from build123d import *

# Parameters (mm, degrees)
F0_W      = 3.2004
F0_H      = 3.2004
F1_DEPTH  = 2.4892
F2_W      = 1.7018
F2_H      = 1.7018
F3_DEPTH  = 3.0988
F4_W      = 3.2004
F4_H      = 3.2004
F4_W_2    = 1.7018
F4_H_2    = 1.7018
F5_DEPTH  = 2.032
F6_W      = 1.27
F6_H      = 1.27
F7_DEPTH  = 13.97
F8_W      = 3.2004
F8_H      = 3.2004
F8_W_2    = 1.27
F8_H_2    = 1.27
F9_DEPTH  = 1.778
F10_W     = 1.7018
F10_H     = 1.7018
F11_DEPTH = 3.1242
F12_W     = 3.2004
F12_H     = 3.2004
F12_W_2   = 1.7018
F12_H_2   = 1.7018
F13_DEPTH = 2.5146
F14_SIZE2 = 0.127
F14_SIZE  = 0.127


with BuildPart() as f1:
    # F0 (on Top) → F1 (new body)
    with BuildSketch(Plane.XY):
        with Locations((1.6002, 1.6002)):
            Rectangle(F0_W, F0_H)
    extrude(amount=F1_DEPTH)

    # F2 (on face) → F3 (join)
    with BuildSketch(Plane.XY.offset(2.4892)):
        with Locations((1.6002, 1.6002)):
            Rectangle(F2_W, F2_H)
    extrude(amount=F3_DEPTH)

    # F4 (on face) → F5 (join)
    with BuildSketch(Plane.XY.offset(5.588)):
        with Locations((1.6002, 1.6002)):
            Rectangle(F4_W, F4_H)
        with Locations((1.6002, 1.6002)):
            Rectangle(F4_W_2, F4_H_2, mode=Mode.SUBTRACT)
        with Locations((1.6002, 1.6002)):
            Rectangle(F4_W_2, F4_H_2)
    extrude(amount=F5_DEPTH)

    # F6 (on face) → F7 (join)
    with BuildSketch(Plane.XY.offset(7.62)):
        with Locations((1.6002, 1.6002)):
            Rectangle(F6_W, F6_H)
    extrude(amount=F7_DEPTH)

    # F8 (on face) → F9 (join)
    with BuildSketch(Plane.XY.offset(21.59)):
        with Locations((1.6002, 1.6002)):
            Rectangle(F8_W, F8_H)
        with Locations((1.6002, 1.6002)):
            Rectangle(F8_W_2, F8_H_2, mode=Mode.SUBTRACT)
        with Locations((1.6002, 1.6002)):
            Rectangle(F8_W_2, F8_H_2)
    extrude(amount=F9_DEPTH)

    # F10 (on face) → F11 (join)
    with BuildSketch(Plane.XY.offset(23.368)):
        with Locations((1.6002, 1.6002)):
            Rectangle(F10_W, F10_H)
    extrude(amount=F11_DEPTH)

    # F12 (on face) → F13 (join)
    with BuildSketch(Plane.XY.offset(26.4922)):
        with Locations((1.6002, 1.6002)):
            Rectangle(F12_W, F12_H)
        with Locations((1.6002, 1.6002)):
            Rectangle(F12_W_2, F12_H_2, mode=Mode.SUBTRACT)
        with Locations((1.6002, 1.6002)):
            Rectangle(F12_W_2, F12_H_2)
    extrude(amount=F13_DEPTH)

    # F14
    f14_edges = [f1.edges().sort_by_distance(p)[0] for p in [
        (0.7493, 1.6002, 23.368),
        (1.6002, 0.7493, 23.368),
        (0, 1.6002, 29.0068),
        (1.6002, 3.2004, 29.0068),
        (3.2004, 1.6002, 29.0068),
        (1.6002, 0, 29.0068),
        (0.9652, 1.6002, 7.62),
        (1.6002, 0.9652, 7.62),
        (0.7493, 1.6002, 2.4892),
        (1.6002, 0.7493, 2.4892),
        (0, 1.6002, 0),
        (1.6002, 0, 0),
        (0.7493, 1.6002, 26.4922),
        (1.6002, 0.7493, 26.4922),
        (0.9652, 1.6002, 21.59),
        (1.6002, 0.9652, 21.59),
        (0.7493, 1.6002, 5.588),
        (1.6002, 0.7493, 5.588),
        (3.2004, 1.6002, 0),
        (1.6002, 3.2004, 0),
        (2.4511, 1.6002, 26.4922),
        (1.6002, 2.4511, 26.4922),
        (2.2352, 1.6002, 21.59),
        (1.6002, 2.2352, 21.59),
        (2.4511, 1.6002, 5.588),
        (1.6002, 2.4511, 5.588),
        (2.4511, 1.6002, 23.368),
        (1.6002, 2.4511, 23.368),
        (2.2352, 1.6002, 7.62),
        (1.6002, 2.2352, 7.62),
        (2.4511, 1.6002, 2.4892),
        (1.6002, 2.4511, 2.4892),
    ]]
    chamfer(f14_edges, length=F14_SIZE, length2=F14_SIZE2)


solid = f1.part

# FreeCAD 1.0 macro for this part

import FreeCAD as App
import Part
import Sketcher
from FreeCAD import Vector
Q = App.Units.Quantity


def edges_at(feature, points):
    """Names of the edges that pass closest to the given points."""
    edges = feature.Shape.Edges
    near = lambda p: min(range(len(edges)), key=lambda i: edges[i].distToShape(Part.Vertex(*p))[0])
    return sorted({f"Edge{near(p) + 1}" for p in points})

doc = App.newDocument("Part")
body = doc.addObject("PartDesign::Body", "Body")

# Sketch on XY plane
sketch1 = body.newObject("Sketcher::SketchObject", "Sketch")
sketch1.AttachmentSupport = (doc.getObject("XY_Plane"), [""])
sketch1.MapMode = "FlatFace"
sketch1.addGeometry([
    Part.LineSegment(Vector(0, 3.2, 0), Vector(0, 0, 0)),
    Part.LineSegment(Vector(0, 0, 0), Vector(3.2, 0, 0)),
    Part.LineSegment(Vector(3.2, 0, 0), Vector(3.2, 3.2, 0)),
    Part.LineSegment(Vector(3.2, 3.2, 0), Vector(0, 3.2, 0)),
], False)
sketch1.addConstraint([
    Sketcher.Constraint("Coincident", 0, 2, 1, 1),
    Sketcher.Constraint("Coincident", 1, 2, 2, 1),
    Sketcher.Constraint("Coincident", 2, 2, 3, 1),
    Sketcher.Constraint("Coincident", 3, 2, 0, 1),
    Sketcher.Constraint("Vertical", 0),
    Sketcher.Constraint("Horizontal", 1),
    Sketcher.Constraint("Vertical", 2),
    Sketcher.Constraint("Horizontal", 3),
    Sketcher.Constraint("Coincident", 0, 2, -1, 1),
    Sketcher.Constraint("Equal", 3, 0),
    Sketcher.Constraint("DistanceX", 1, 1, 1, 2, Q("0.126 in")),
])
pad1 = body.newObject("PartDesign::Pad", "Pad")
pad1.Profile = sketch1
pad1.Length = Q("0.098 in")

# Sketch on XY plane
sketch2 = body.newObject("Sketcher::SketchObject", "Sketch001")
sketch2.AttachmentSupport = (doc.getObject("XY_Plane"), [""])
sketch2.MapMode = "FlatFace"
sketch2.AttachmentOffset = App.Placement(Vector(0, 0, 0.098 * 25.4), App.Rotation())
sketch2.addGeometry([
    Part.LineSegment(Vector(0.7, 2.5, 0), Vector(0.7, 0.7, 0)),
    Part.LineSegment(Vector(0.7, 0.7, 0), Vector(2.5, 0.7, 0)),
    Part.LineSegment(Vector(2.5, 0.7, 0), Vector(2.5, 2.5, 0)),
    Part.LineSegment(Vector(2.5, 2.5, 0), Vector(0.7, 2.5, 0)),
], False)
sketch2.addConstraint([
    Sketcher.Constraint("Coincident", 0, 2, 1, 1),
    Sketcher.Constraint("Coincident", 1, 2, 2, 1),
    Sketcher.Constraint("Coincident", 2, 2, 3, 1),
    Sketcher.Constraint("Coincident", 3, 2, 0, 1),
    Sketcher.Constraint("Vertical", 0),
    Sketcher.Constraint("Horizontal", 1),
    Sketcher.Constraint("Vertical", 2),
    Sketcher.Constraint("Horizontal", 3),
    Sketcher.Constraint("Equal", 3, 0),
    Sketcher.Constraint("DistanceX", 1, 1, 1, 2, Q("0.067 in")),
    Sketcher.Constraint("DistanceX", -1, 1, 0, 2, Q("0.0295 in")),
    Sketcher.Constraint("DistanceY", -1, 1, 0, 2, Q("0.0295 in")),
])
pad2 = body.newObject("PartDesign::Pad", "Pad001")
pad2.Profile = sketch2
pad2.Length = Q("0.122 in")

# Sketch on XY plane
sketch3 = body.newObject("Sketcher::SketchObject", "Sketch002")
sketch3.AttachmentSupport = (doc.getObject("XY_Plane"), [""])
sketch3.MapMode = "FlatFace"
sketch3.AttachmentOffset = App.Placement(Vector(0, 0, 0.22 * 25.4), App.Rotation())
sketch3.addGeometry([
    Part.LineSegment(Vector(0, 3.2, 0), Vector(0, 0, 0)),
    Part.LineSegment(Vector(0, 0, 0), Vector(3.2, 0, 0)),
    Part.LineSegment(Vector(3.2, 0, 0), Vector(3.2, 3.2, 0)),
    Part.LineSegment(Vector(3.2, 3.2, 0), Vector(0, 3.2, 0)),
], False)
sketch3.addConstraint([
    Sketcher.Constraint("Coincident", 0, 2, 1, 1),
    Sketcher.Constraint("Coincident", 1, 2, 2, 1),
    Sketcher.Constraint("Coincident", 2, 2, 3, 1),
    Sketcher.Constraint("Coincident", 3, 2, 0, 1),
    Sketcher.Constraint("Vertical", 0),
    Sketcher.Constraint("Horizontal", 1),
    Sketcher.Constraint("Vertical", 2),
    Sketcher.Constraint("Horizontal", 3),
    Sketcher.Constraint("Coincident", 0, 2, -1, 1),
    Sketcher.Constraint("Equal", 3, 0),
    Sketcher.Constraint("DistanceX", 1, 1, 1, 2, Q("0.126 in")),
])
pad3 = body.newObject("PartDesign::Pad", "Pad002")
pad3.Profile = sketch3
pad3.Length = Q("0.08 in")

# Sketch on XY plane
sketch4 = body.newObject("Sketcher::SketchObject", "Sketch003")
sketch4.AttachmentSupport = (doc.getObject("XY_Plane"), [""])
sketch4.MapMode = "FlatFace"
sketch4.AttachmentOffset = App.Placement(Vector(0, 0, 0.3 * 25.4), App.Rotation())
sketch4.addGeometry([
    Part.LineSegment(Vector(1, 2.2, 0), Vector(1, 1, 0)),
    Part.LineSegment(Vector(1, 1, 0), Vector(2.2, 1, 0)),
    Part.LineSegment(Vector(2.2, 1, 0), Vector(2.2, 2.2, 0)),
    Part.LineSegment(Vector(2.2, 2.2, 0), Vector(1, 2.2, 0)),
], False)
sketch4.addConstraint([
    Sketcher.Constraint("Coincident", 0, 2, 1, 1),
    Sketcher.Constraint("Coincident", 1, 2, 2, 1),
    Sketcher.Constraint("Coincident", 2, 2, 3, 1),
    Sketcher.Constraint("Coincident", 3, 2, 0, 1),
    Sketcher.Constraint("Vertical", 0),
    Sketcher.Constraint("Horizontal", 1),
    Sketcher.Constraint("Vertical", 2),
    Sketcher.Constraint("Horizontal", 3),
    Sketcher.Constraint("Equal", 3, 0),
    Sketcher.Constraint("DistanceX", 1, 1, 1, 2, Q("0.05 in")),
    Sketcher.Constraint("DistanceX", -1, 1, 0, 2, Q("0.038 in")),
    Sketcher.Constraint("DistanceY", -1, 1, 0, 2, Q("0.038 in")),
])
pad4 = body.newObject("PartDesign::Pad", "Pad003")
pad4.Profile = sketch4
pad4.Length = Q("0.55 in")

# Sketch on XY plane
sketch5 = body.newObject("Sketcher::SketchObject", "Sketch004")
sketch5.AttachmentSupport = (doc.getObject("XY_Plane"), [""])
sketch5.MapMode = "FlatFace"
sketch5.AttachmentOffset = App.Placement(Vector(0, 0, 0.85 * 25.4), App.Rotation())
sketch5.addGeometry([
    Part.LineSegment(Vector(0, 3.2, 0), Vector(0, 0, 0)),
    Part.LineSegment(Vector(0, 0, 0), Vector(3.2, 0, 0)),
    Part.LineSegment(Vector(3.2, 0, 0), Vector(3.2, 3.2, 0)),
    Part.LineSegment(Vector(3.2, 3.2, 0), Vector(0, 3.2, 0)),
], False)
sketch5.addConstraint([
    Sketcher.Constraint("Coincident", 0, 2, 1, 1),
    Sketcher.Constraint("Coincident", 1, 2, 2, 1),
    Sketcher.Constraint("Coincident", 2, 2, 3, 1),
    Sketcher.Constraint("Coincident", 3, 2, 0, 1),
    Sketcher.Constraint("Vertical", 0),
    Sketcher.Constraint("Horizontal", 1),
    Sketcher.Constraint("Vertical", 2),
    Sketcher.Constraint("Horizontal", 3),
    Sketcher.Constraint("Coincident", 0, 2, -1, 1),
    Sketcher.Constraint("Equal", 3, 0),
    Sketcher.Constraint("DistanceX", 1, 1, 1, 2, Q("0.126 in")),
])
pad5 = body.newObject("PartDesign::Pad", "Pad004")
pad5.Profile = sketch5
pad5.Length = Q("0.07 in")

# Sketch on XY plane
sketch6 = body.newObject("Sketcher::SketchObject", "Sketch005")
sketch6.AttachmentSupport = (doc.getObject("XY_Plane"), [""])
sketch6.MapMode = "FlatFace"
sketch6.AttachmentOffset = App.Placement(Vector(0, 0, 0.92 * 25.4), App.Rotation())
sketch6.addGeometry([
    Part.LineSegment(Vector(0.7, 2.5, 0), Vector(0.7, 0.7, 0)),
    Part.LineSegment(Vector(0.7, 0.7, 0), Vector(2.5, 0.7, 0)),
    Part.LineSegment(Vector(2.5, 0.7, 0), Vector(2.5, 2.5, 0)),
    Part.LineSegment(Vector(2.5, 2.5, 0), Vector(0.7, 2.5, 0)),
], False)
sketch6.addConstraint([
    Sketcher.Constraint("Coincident", 0, 2, 1, 1),
    Sketcher.Constraint("Coincident", 1, 2, 2, 1),
    Sketcher.Constraint("Coincident", 2, 2, 3, 1),
    Sketcher.Constraint("Coincident", 3, 2, 0, 1),
    Sketcher.Constraint("Vertical", 0),
    Sketcher.Constraint("Horizontal", 1),
    Sketcher.Constraint("Vertical", 2),
    Sketcher.Constraint("Horizontal", 3),
    Sketcher.Constraint("Equal", 3, 0),
    Sketcher.Constraint("DistanceX", 1, 1, 1, 2, Q("0.067 in")),
    Sketcher.Constraint("DistanceX", -1, 1, 0, 2, Q("0.0295 in")),
    Sketcher.Constraint("DistanceY", -1, 1, 0, 2, Q("0.0295 in")),
])
pad6 = body.newObject("PartDesign::Pad", "Pad005")
pad6.Profile = sketch6
pad6.Length = Q("0.123 in")

# Sketch on XY plane
sketch7 = body.newObject("Sketcher::SketchObject", "Sketch006")
sketch7.AttachmentSupport = (doc.getObject("XY_Plane"), [""])
sketch7.MapMode = "FlatFace"
sketch7.AttachmentOffset = App.Placement(Vector(0, 0, 1.043 * 25.4), App.Rotation())
sketch7.addGeometry([
    Part.LineSegment(Vector(0, 3.2, 0), Vector(0, 0, 0)),
    Part.LineSegment(Vector(0, 0, 0), Vector(3.2, 0, 0)),
    Part.LineSegment(Vector(3.2, 0, 0), Vector(3.2, 3.2, 0)),
    Part.LineSegment(Vector(3.2, 3.2, 0), Vector(0, 3.2, 0)),
], False)
sketch7.addConstraint([
    Sketcher.Constraint("Coincident", 0, 2, 1, 1),
    Sketcher.Constraint("Coincident", 1, 2, 2, 1),
    Sketcher.Constraint("Coincident", 2, 2, 3, 1),
    Sketcher.Constraint("Coincident", 3, 2, 0, 1),
    Sketcher.Constraint("Vertical", 0),
    Sketcher.Constraint("Horizontal", 1),
    Sketcher.Constraint("Vertical", 2),
    Sketcher.Constraint("Horizontal", 3),
    Sketcher.Constraint("Coincident", 0, 2, -1, 1),
    Sketcher.Constraint("Equal", 3, 0),
    Sketcher.Constraint("DistanceX", 1, 1, 1, 2, Q("0.126 in")),
])
pad7 = body.newObject("PartDesign::Pad", "Pad006")
pad7.Profile = sketch7
pad7.Length = Q("0.099 in")
doc.recompute()

chamfer = body.newObject("PartDesign::Chamfer", "Chamfer")
chamfer.Base = (pad7, edges_at(pad7, [
    (0.749, 1.6, 23.368),
    (1.6, 0.749, 23.368),
    (0, 1.6, 29.007),
    (1.6, 3.2, 29.007),
    (3.2, 1.6, 29.007),
    (1.6, 0, 29.007),
    (0.965, 1.6, 7.62),
    (1.6, 0.965, 7.62),
    (0.749, 1.6, 2.489),
    (1.6, 0.749, 2.489),
    (0, 1.6, 0),
    (1.6, 0, 0),
    (0.749, 1.6, 26.492),
    (1.6, 0.749, 26.492),
    (0.965, 1.6, 21.59),
    (1.6, 0.965, 21.59),
    (0.749, 1.6, 5.588),
    (1.6, 0.749, 5.588),
    (3.2, 1.6, 0),
    (1.6, 3.2, 0),
    (2.451, 1.6, 26.492),
    (1.6, 2.451, 26.492),
    (2.235, 1.6, 21.59),
    (1.6, 2.235, 21.59),
    (2.451, 1.6, 5.588),
    (1.6, 2.451, 5.588),
    (2.451, 1.6, 23.368),
    (1.6, 2.451, 23.368),
    (2.235, 1.6, 7.62),
    (1.6, 2.235, 7.62),
    (2.451, 1.6, 2.489),
    (1.6, 2.451, 2.489),
]))
chamfer.ChamferType = "Two distances"
chamfer.Size = Q("0.005 in")
chamfer.Size2 = Q("0.005 in")

doc.recompute()
